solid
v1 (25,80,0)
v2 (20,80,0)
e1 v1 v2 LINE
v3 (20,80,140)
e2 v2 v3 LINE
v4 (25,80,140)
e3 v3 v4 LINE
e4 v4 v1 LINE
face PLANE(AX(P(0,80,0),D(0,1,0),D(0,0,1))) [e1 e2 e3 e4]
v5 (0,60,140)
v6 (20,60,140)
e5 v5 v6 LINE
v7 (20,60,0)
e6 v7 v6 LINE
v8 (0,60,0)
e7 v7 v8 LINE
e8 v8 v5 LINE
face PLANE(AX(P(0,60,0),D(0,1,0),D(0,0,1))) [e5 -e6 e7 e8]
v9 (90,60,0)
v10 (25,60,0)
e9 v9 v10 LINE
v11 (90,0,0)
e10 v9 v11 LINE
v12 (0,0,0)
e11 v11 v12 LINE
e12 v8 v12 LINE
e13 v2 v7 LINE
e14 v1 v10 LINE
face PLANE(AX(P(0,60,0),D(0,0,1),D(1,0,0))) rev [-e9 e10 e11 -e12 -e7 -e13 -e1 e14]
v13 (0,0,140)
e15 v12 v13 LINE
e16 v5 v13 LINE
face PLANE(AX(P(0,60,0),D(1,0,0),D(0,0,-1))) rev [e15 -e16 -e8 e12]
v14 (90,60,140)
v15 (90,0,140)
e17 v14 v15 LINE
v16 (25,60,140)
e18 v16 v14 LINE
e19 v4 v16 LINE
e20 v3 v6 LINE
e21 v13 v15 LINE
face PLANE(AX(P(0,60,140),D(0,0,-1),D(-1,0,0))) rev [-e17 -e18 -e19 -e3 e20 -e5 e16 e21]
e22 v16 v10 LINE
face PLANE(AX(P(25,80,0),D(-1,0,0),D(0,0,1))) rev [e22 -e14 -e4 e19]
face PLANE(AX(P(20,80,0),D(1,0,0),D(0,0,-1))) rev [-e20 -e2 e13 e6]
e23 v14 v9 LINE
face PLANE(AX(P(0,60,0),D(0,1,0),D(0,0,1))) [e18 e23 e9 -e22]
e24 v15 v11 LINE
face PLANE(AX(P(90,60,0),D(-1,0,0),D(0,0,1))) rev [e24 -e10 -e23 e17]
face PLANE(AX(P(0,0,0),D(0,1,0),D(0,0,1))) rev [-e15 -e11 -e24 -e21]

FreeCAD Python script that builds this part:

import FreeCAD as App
import Part
import Sketcher

V = App.Vector

doc = App.newDocument("Part")
body = doc.addObject("PartDesign::Body", "Body")

# Sketch on XZ plane
sketch1 = body.newObject("Sketcher::SketchObject", "Sketch")
sketch1.AttachmentSupport = (doc.getObject("XZ_Plane"), [""])
sketch1.MapMode = "FlatFace"
sketch1.addGeometry([
    Part.LineSegment(V(0, 0, 0), V(0, 140, 0)),
    Part.LineSegment(V(0, 140, 0), V(90, 140, 0)),
    Part.LineSegment(V(90, 140, 0), V(90, 0, 0)),
    Part.LineSegment(V(90, 0, 0), V(0, 0, 0)),
], False)
sketch1.addConstraint([
    Sketcher.Constraint("Coincident", 0, 2, 1, 1),
    Sketcher.Constraint("Coincident", 1, 2, 2, 1),
    Sketcher.Constraint("Coincident", 2, 2, 3, 1),
    Sketcher.Constraint("Coincident", 3, 2, 0, 1),
    Sketcher.Constraint("Vertical", 0),
    Sketcher.Constraint("Horizontal", 1),
    Sketcher.Constraint("Vertical", 2),
    Sketcher.Constraint("Horizontal", 3),
    Sketcher.Constraint("Coincident", 3, 2, -1, 1),
    Sketcher.Constraint("DistanceX", 1, 1, 1, 2, 90.0),
    Sketcher.Constraint("DistanceY", 0, 1, 0, 2, 140.0),
])
pad1 = body.newObject("PartDesign::Pad", "Pad")
pad1.Profile = sketch1
pad1.Length = 60
pad1.Reversed = True

# Sketch on XZ plane
sketch2 = body.newObject("Sketcher::SketchObject", "Sketch001")
sketch2.AttachmentSupport = (doc.getObject("XZ_Plane"), [""])
sketch2.MapMode = "FlatFace"
sketch2.AttachmentOffset = App.Placement(V(0, 0, -60), App.Rotation())
sketch2.addGeometry([
    Part.LineSegment(V(20, 0, 0), V(20, 140, 0)),
    Part.LineSegment(V(20, 140, 0), V(25, 140, 0)),
    Part.LineSegment(V(25, 140, 0), V(25, 0, 0)),
    Part.LineSegment(V(25, 0, 0), V(20, 0, 0)),
], False)
sketch2.addConstraint([
    Sketcher.Constraint("Coincident", 0, 2, 1, 1),
    Sketcher.Constraint("Coincident", 1, 2, 2, 1),
    Sketcher.Constraint("Coincident", 2, 2, 3, 1),
    Sketcher.Constraint("Coincident", 3, 2, 0, 1),
    Sketcher.Constraint("Vertical", 0),
    Sketcher.Constraint("Horizontal", 1),
    Sketcher.Constraint("Vertical", 2),
    Sketcher.Constraint("Horizontal", 3),
    Sketcher.Constraint("PointOnObject", 2, 2, -1),
    Sketcher.Constraint("DistanceX", 1, 1, 1, 2, 5.0),
    Sketcher.Constraint("DistanceY", 0, 1, 0, 2, 140.0),
    Sketcher.Constraint("DistanceX", -1, 1, 0, 2, 20.0),
])
pad2 = body.newObject("PartDesign::Pad", "Pad001")
pad2.Profile = sketch2
pad2.Length = 20
pad2.Reversed = True

doc.recompute()
